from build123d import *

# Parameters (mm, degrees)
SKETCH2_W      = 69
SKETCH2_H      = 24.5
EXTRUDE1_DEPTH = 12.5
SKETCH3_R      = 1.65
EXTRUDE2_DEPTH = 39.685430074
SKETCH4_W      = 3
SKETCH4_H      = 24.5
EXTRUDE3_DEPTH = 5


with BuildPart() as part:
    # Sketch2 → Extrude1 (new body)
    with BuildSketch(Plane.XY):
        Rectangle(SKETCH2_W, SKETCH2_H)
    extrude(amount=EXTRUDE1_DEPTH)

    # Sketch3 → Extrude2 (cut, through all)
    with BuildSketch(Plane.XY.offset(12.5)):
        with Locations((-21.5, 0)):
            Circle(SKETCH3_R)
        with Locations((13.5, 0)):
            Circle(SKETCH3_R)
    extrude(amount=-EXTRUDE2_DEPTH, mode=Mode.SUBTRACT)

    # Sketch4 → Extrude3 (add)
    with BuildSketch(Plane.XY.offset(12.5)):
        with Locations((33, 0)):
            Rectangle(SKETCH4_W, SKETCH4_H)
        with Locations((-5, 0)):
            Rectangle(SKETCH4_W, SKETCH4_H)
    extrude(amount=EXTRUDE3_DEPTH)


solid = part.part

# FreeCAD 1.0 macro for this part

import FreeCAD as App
import Part
import Sketcher

V = App.Vector
Q = App.Units.Quantity

doc = App.newDocument("Part")
body = doc.addObject("PartDesign::Body", "Body")

# Sketch on XY plane
sketch1 = doc.addObject("Sketcher::SketchObject", "Sketch")
body.addObject(sketch1)
sketch1.AttachmentSupport = (doc.XY_Plane, [""])
sketch1.MapMode = "FlatFace"
sketch1.addGeometry([
    Part.LineSegment(V(-34.5, 12.25, 0), V(-34.5, -12.25, 0)),
    Part.LineSegment(V(-34.5, -12.25, 0), V(34.5, -12.25, 0)),
    Part.LineSegment(V(34.5, -12.25, 0), V(34.5, 12.25, 0)),
    Part.LineSegment(V(34.5, 12.25, 0), V(-34.5, 12.25, 0)),
], False)
sketch1.addConstraint([
    Sketcher.Constraint("Coincident", 0, 2, 1, 1),
    Sketcher.Constraint("Coincident", 1, 2, 2, 1),
    Sketcher.Constraint("Coincident", 2, 2, 3, 1),
    Sketcher.Constraint("Coincident", 3, 2, 0, 1),
    Sketcher.Constraint("Vertical", 0),
    Sketcher.Constraint("Horizontal", 1),
    Sketcher.Constraint("Vertical", 2),
    Sketcher.Constraint("Horizontal", 3),
    Sketcher.Constraint("Symmetric", 0, 2, 2, 2, -1, 1),
    Sketcher.Constraint("DistanceX", 1, 1, 1, 2, Q("69 mm")),
    Sketcher.Constraint("DistanceY", 0, 2, 0, 1, Q("24.5 mm")),
])
pad1 = doc.addObject("PartDesign::Pad", "Pad")
body.addObject(pad1)
pad1.Profile = sketch1
pad1.Length = 12.5

# Sketch on XY plane
sketch2 = doc.addObject("Sketcher::SketchObject", "Sketch001")
body.addObject(sketch2)
sketch2.AttachmentSupport = (doc.XY_Plane, [""])
sketch2.MapMode = "FlatFace"
sketch2.AttachmentOffset = App.Placement(V(0, 0, 12.5), App.Rotation())
sketch2.addGeometry([
    Part.Circle(V(-21.5, 0, 0), V(0, 0, 1), 1.65),
    Part.Circle(V(13.5, 0, 0), V(0, 0, 1), 1.65),
], False)
sketch2.addConstraint([
    Sketcher.Constraint("Equal", 0, 1),
    Sketcher.Constraint("PointOnObject", 0, 3, -1),
    Sketcher.Constraint("PointOnObject", 1, 3, -1),
    Sketcher.Constraint("Diameter", 0, Q("3.3 mm")),
    Sketcher.Constraint("DistanceX", 0, 3, 1, 3, Q("35 mm")),
    Sketcher.Constraint("DistanceX", 0, 3, -1, 1, Q("21.5 mm")),
])
pocket1 = doc.addObject("PartDesign::Pocket", "Pocket")
body.addObject(pocket1)
pocket1.Profile = sketch2
pocket1.Type = "ThroughAll"

# Sketch on XY plane
sketch3 = doc.addObject("Sketcher::SketchObject", "Sketch002")
body.addObject(sketch3)
sketch3.AttachmentSupport = (doc.XY_Plane, [""])
sketch3.MapMode = "FlatFace"
sketch3.AttachmentOffset = App.Placement(V(0, 0, 12.5), App.Rotation())
sketch3.addGeometry([
    Part.LineSegment(V(31.5, 12.25, 0), V(31.5, -12.25, 0)),  # 0
    Part.LineSegment(V(31.5, -12.25, 0), V(34.5, -12.25, 0)),  # 1
    Part.LineSegment(V(34.5, -12.25, 0), V(34.5, 12.25, 0)),  # 2
    Part.LineSegment(V(34.5, 12.25, 0), V(31.5, 12.25, 0)),  # 3
    Part.LineSegment(V(-6.5, 12.25, 0), V(-6.5, -12.25, 0)),  # 4
    Part.LineSegment(V(-6.5, -12.25, 0), V(-3.5, -12.25, 0)),  # 5
    Part.LineSegment(V(-3.5, -12.25, 0), V(-3.5, 12.25, 0)),  # 6
    Part.LineSegment(V(-3.5, 12.25, 0), V(-6.5, 12.25, 0)),  # 7
], False)
sketch3.addConstraint([
    Sketcher.Constraint("Coincident", 0, 2, 1, 1),
    Sketcher.Constraint("Coincident", 1, 2, 2, 1),
    Sketcher.Constraint("Coincident", 2, 2, 3, 1),
    Sketcher.Constraint("Coincident", 3, 2, 0, 1),
    Sketcher.Constraint("Coincident", 4, 2, 5, 1),
    Sketcher.Constraint("Coincident", 5, 2, 6, 1),
    Sketcher.Constraint("Coincident", 6, 2, 7, 1),
    Sketcher.Constraint("Coincident", 7, 2, 4, 1),
    Sketcher.Constraint("Vertical", 0),
    Sketcher.Constraint("Horizontal", 1),
    Sketcher.Constraint("Vertical", 2),
    Sketcher.Constraint("Horizontal", 3),
    Sketcher.Constraint("Vertical", 4),
    Sketcher.Constraint("Horizontal", 5),
    Sketcher.Constraint("Vertical", 6),
    Sketcher.Constraint("Horizontal", 7),
    Sketcher.Constraint("Horizontal", 1, 2, 4, 2),
    Sketcher.Constraint("Horizontal", 3, 2, 6, 2),
    Sketcher.Constraint("Equal", 3, 5),
    Sketcher.Constraint("DistanceX", 1, 1, 1, 2, Q("3 mm")),
    Sketcher.Constraint("DistanceY", 0, 2, 0, 1, Q("24.5 mm")),
    Sketcher.Constraint("DistanceX", 4, 2, 0, 2, Q("38 mm")),
    Sketcher.Constraint("DistanceX", -1, 1, 0, 2, Q("31.5 mm")),
    Sketcher.Constraint("DistanceY", 0, 2, -1, 1, Q("12.25 mm")),
])
pad2 = doc.addObject("PartDesign::Pad", "Pad001")
body.addObject(pad2)
pad2.Profile = sketch3
pad2.Length = 5

doc.recompute()
